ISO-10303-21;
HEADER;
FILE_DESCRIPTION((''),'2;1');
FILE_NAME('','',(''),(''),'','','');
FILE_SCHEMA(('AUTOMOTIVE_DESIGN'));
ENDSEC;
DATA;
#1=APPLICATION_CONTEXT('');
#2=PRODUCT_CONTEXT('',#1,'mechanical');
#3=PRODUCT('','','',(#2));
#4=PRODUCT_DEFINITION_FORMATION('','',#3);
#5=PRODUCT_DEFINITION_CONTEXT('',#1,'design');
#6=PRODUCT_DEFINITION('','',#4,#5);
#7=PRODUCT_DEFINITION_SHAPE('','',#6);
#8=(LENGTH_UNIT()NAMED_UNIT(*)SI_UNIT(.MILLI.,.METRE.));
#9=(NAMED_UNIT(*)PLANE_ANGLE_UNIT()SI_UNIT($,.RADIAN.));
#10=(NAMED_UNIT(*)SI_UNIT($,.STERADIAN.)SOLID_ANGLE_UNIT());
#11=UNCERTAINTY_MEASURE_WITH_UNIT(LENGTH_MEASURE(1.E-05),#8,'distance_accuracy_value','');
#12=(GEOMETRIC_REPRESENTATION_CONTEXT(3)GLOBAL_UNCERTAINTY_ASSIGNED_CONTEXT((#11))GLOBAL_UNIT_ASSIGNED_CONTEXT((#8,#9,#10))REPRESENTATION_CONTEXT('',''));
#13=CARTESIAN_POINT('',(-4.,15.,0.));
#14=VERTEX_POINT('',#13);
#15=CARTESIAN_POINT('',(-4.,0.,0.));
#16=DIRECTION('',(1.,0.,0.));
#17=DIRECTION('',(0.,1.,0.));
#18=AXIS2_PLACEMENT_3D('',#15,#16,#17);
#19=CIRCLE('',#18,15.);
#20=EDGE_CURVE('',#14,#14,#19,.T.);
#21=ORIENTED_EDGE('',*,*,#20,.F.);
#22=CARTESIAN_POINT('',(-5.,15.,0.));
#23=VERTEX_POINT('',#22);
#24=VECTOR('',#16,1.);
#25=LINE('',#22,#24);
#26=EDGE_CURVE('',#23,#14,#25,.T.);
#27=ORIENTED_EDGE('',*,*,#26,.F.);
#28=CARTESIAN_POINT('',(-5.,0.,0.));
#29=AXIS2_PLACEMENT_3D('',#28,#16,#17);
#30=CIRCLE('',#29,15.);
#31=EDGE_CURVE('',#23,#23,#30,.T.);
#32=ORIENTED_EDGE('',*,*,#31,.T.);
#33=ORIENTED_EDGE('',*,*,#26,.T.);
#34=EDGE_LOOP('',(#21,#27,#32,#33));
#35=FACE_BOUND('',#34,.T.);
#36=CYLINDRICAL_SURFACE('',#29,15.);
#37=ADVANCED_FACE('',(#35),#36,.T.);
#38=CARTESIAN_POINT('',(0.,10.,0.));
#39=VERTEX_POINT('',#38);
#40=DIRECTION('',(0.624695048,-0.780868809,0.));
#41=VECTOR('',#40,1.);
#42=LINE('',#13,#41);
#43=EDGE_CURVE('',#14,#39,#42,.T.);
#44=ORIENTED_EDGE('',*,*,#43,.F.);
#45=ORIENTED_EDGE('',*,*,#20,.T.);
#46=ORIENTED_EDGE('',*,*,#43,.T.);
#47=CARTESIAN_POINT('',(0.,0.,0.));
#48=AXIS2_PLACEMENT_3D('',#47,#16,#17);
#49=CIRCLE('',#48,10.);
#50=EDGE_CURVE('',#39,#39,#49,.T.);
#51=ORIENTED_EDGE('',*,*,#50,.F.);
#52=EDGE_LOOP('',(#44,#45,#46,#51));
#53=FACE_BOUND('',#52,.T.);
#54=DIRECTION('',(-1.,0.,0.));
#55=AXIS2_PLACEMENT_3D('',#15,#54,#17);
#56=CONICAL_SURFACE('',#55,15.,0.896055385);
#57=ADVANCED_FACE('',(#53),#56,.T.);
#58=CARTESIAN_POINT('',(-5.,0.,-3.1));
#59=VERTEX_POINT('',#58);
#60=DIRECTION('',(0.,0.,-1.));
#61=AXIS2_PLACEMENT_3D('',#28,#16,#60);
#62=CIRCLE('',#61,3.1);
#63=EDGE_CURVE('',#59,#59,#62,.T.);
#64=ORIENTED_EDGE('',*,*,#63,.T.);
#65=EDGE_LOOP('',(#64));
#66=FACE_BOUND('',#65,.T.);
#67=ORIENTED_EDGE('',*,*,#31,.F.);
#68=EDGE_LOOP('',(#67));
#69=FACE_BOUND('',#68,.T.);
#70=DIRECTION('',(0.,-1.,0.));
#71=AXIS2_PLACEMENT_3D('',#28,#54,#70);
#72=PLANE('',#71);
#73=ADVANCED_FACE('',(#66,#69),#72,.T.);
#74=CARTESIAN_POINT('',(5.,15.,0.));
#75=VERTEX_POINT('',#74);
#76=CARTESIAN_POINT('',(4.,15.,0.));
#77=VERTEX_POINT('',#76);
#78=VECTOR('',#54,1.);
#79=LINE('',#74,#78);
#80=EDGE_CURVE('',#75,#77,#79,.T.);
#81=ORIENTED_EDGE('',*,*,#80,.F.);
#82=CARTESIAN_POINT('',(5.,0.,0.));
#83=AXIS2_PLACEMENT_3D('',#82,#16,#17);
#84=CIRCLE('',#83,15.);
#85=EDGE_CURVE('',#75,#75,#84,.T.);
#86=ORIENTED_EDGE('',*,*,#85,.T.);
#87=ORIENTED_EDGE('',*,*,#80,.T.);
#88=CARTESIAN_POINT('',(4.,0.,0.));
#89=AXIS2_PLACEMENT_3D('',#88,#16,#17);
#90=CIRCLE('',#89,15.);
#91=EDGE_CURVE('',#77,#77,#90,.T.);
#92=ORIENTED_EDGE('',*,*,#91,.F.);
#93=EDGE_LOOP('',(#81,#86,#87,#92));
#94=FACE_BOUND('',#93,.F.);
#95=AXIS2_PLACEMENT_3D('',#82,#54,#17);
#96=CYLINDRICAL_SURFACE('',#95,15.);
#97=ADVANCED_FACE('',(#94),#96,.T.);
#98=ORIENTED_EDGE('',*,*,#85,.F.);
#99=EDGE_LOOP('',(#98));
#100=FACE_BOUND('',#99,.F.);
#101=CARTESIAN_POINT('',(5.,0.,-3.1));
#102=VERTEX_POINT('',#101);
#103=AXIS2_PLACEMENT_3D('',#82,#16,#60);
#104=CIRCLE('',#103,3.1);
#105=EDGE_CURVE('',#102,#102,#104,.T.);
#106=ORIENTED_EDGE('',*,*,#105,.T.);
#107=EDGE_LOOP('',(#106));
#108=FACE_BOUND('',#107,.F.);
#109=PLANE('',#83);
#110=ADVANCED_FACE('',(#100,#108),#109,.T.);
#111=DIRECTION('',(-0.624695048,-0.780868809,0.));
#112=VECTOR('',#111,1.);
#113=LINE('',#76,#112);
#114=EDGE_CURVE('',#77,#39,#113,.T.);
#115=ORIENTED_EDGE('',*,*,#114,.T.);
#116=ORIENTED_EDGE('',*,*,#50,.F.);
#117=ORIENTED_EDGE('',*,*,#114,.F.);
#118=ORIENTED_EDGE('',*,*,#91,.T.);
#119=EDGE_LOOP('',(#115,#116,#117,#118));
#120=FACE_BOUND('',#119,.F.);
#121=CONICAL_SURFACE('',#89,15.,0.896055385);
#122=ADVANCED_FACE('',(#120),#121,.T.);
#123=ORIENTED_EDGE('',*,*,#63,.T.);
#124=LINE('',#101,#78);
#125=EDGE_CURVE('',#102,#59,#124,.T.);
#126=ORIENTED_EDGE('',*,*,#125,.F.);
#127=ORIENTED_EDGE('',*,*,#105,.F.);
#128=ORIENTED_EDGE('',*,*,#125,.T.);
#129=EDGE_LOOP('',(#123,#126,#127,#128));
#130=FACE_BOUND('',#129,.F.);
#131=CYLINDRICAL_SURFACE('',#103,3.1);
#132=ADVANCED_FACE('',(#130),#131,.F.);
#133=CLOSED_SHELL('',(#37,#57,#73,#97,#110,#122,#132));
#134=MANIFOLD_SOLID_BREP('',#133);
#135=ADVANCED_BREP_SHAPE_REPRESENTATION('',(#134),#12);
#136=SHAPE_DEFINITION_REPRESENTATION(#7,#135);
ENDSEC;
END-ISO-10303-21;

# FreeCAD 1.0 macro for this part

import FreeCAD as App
import Part
import Sketcher

V = App.Vector


def add_polygon(sketch, points):
    """Adds a closed chain of lines whose ends are joined by coincident constraints."""
    first, n = sketch.GeometryCount, len(points)
    for a, b in zip(points, points[1:] + points[:1]):
        sketch.addGeometry(Part.LineSegment(App.Vector(*a, 0), App.Vector(*b, 0)), False)
    for i in range(n):
        sketch.addConstraint(Sketcher.Constraint("Coincident", first + i, 2, first + (i + 1) % n, 1))

doc = App.newDocument("Part")
body = doc.addObject("PartDesign::Body", "Body")

sketch1 = body.newObject("Sketcher::SketchObject", "Sketch")
sketch1.AttachmentSupport = (doc.getObject("XY_Plane"), [""])
sketch1.MapMode = "FlatFace"
add_polygon(sketch1, [(0, 10), (0, 0), (5, 0), (5, 15), (4, 15)])
sketch1.addConstraint([
    Sketcher.Constraint("Vertical", 0),
    Sketcher.Constraint("Horizontal", 1),
    Sketcher.Constraint("Vertical", 2),
    Sketcher.Constraint("Horizontal", 3),
    Sketcher.Constraint("Coincident", 0, 2, -1, 1),
    Sketcher.Constraint("DistanceX", 1, 1, 1, 2, 5.0),
    Sketcher.Constraint("DistanceX", 3, 2, 3, 1, 1.0),
    Sketcher.Constraint("DistanceY", 0, 2, 0, 1, 10.0),
    Sketcher.Constraint("DistanceY", 2, 1, 2, 2, 15.0),
])
revolution = body.newObject("PartDesign::Revolution", "Revolution")
revolution.Profile = sketch1
revolution.ReferenceAxis = (sketch1, ["H_Axis"])
revolution.Angle = 360
doc.recompute()

mirrored = body.newObject("PartDesign::Mirrored", "Mirrored")
mirrored.TransformMode = "Transform body"
mirrored.MirrorPlane = (doc.getObject("YZ_Plane"), [""])
body.Tip = mirrored

sketch2 = body.newObject("Sketcher::SketchObject", "Sketch001")
sketch2.AttachmentSupport = (doc.getObject("YZ_Plane"), [""])
sketch2.MapMode = "FlatFace"
sketch2.AttachmentOffset = App.Placement(V(0, 0, 5), App.Rotation())
sketch2.addGeometry(Part.Circle(V(0, 0, 0), V(0, 0, 1), 3.1), False)
sketch2.addConstraint([
    Sketcher.Constraint("Coincident", 0, 3, -1, 1),
    Sketcher.Constraint("Diameter", 0, 6.2),
])
pocket1 = body.newObject("PartDesign::Pocket", "Pocket")
pocket1.Profile = sketch2
pocket1.Type = "ThroughAll"

doc.recompute()
